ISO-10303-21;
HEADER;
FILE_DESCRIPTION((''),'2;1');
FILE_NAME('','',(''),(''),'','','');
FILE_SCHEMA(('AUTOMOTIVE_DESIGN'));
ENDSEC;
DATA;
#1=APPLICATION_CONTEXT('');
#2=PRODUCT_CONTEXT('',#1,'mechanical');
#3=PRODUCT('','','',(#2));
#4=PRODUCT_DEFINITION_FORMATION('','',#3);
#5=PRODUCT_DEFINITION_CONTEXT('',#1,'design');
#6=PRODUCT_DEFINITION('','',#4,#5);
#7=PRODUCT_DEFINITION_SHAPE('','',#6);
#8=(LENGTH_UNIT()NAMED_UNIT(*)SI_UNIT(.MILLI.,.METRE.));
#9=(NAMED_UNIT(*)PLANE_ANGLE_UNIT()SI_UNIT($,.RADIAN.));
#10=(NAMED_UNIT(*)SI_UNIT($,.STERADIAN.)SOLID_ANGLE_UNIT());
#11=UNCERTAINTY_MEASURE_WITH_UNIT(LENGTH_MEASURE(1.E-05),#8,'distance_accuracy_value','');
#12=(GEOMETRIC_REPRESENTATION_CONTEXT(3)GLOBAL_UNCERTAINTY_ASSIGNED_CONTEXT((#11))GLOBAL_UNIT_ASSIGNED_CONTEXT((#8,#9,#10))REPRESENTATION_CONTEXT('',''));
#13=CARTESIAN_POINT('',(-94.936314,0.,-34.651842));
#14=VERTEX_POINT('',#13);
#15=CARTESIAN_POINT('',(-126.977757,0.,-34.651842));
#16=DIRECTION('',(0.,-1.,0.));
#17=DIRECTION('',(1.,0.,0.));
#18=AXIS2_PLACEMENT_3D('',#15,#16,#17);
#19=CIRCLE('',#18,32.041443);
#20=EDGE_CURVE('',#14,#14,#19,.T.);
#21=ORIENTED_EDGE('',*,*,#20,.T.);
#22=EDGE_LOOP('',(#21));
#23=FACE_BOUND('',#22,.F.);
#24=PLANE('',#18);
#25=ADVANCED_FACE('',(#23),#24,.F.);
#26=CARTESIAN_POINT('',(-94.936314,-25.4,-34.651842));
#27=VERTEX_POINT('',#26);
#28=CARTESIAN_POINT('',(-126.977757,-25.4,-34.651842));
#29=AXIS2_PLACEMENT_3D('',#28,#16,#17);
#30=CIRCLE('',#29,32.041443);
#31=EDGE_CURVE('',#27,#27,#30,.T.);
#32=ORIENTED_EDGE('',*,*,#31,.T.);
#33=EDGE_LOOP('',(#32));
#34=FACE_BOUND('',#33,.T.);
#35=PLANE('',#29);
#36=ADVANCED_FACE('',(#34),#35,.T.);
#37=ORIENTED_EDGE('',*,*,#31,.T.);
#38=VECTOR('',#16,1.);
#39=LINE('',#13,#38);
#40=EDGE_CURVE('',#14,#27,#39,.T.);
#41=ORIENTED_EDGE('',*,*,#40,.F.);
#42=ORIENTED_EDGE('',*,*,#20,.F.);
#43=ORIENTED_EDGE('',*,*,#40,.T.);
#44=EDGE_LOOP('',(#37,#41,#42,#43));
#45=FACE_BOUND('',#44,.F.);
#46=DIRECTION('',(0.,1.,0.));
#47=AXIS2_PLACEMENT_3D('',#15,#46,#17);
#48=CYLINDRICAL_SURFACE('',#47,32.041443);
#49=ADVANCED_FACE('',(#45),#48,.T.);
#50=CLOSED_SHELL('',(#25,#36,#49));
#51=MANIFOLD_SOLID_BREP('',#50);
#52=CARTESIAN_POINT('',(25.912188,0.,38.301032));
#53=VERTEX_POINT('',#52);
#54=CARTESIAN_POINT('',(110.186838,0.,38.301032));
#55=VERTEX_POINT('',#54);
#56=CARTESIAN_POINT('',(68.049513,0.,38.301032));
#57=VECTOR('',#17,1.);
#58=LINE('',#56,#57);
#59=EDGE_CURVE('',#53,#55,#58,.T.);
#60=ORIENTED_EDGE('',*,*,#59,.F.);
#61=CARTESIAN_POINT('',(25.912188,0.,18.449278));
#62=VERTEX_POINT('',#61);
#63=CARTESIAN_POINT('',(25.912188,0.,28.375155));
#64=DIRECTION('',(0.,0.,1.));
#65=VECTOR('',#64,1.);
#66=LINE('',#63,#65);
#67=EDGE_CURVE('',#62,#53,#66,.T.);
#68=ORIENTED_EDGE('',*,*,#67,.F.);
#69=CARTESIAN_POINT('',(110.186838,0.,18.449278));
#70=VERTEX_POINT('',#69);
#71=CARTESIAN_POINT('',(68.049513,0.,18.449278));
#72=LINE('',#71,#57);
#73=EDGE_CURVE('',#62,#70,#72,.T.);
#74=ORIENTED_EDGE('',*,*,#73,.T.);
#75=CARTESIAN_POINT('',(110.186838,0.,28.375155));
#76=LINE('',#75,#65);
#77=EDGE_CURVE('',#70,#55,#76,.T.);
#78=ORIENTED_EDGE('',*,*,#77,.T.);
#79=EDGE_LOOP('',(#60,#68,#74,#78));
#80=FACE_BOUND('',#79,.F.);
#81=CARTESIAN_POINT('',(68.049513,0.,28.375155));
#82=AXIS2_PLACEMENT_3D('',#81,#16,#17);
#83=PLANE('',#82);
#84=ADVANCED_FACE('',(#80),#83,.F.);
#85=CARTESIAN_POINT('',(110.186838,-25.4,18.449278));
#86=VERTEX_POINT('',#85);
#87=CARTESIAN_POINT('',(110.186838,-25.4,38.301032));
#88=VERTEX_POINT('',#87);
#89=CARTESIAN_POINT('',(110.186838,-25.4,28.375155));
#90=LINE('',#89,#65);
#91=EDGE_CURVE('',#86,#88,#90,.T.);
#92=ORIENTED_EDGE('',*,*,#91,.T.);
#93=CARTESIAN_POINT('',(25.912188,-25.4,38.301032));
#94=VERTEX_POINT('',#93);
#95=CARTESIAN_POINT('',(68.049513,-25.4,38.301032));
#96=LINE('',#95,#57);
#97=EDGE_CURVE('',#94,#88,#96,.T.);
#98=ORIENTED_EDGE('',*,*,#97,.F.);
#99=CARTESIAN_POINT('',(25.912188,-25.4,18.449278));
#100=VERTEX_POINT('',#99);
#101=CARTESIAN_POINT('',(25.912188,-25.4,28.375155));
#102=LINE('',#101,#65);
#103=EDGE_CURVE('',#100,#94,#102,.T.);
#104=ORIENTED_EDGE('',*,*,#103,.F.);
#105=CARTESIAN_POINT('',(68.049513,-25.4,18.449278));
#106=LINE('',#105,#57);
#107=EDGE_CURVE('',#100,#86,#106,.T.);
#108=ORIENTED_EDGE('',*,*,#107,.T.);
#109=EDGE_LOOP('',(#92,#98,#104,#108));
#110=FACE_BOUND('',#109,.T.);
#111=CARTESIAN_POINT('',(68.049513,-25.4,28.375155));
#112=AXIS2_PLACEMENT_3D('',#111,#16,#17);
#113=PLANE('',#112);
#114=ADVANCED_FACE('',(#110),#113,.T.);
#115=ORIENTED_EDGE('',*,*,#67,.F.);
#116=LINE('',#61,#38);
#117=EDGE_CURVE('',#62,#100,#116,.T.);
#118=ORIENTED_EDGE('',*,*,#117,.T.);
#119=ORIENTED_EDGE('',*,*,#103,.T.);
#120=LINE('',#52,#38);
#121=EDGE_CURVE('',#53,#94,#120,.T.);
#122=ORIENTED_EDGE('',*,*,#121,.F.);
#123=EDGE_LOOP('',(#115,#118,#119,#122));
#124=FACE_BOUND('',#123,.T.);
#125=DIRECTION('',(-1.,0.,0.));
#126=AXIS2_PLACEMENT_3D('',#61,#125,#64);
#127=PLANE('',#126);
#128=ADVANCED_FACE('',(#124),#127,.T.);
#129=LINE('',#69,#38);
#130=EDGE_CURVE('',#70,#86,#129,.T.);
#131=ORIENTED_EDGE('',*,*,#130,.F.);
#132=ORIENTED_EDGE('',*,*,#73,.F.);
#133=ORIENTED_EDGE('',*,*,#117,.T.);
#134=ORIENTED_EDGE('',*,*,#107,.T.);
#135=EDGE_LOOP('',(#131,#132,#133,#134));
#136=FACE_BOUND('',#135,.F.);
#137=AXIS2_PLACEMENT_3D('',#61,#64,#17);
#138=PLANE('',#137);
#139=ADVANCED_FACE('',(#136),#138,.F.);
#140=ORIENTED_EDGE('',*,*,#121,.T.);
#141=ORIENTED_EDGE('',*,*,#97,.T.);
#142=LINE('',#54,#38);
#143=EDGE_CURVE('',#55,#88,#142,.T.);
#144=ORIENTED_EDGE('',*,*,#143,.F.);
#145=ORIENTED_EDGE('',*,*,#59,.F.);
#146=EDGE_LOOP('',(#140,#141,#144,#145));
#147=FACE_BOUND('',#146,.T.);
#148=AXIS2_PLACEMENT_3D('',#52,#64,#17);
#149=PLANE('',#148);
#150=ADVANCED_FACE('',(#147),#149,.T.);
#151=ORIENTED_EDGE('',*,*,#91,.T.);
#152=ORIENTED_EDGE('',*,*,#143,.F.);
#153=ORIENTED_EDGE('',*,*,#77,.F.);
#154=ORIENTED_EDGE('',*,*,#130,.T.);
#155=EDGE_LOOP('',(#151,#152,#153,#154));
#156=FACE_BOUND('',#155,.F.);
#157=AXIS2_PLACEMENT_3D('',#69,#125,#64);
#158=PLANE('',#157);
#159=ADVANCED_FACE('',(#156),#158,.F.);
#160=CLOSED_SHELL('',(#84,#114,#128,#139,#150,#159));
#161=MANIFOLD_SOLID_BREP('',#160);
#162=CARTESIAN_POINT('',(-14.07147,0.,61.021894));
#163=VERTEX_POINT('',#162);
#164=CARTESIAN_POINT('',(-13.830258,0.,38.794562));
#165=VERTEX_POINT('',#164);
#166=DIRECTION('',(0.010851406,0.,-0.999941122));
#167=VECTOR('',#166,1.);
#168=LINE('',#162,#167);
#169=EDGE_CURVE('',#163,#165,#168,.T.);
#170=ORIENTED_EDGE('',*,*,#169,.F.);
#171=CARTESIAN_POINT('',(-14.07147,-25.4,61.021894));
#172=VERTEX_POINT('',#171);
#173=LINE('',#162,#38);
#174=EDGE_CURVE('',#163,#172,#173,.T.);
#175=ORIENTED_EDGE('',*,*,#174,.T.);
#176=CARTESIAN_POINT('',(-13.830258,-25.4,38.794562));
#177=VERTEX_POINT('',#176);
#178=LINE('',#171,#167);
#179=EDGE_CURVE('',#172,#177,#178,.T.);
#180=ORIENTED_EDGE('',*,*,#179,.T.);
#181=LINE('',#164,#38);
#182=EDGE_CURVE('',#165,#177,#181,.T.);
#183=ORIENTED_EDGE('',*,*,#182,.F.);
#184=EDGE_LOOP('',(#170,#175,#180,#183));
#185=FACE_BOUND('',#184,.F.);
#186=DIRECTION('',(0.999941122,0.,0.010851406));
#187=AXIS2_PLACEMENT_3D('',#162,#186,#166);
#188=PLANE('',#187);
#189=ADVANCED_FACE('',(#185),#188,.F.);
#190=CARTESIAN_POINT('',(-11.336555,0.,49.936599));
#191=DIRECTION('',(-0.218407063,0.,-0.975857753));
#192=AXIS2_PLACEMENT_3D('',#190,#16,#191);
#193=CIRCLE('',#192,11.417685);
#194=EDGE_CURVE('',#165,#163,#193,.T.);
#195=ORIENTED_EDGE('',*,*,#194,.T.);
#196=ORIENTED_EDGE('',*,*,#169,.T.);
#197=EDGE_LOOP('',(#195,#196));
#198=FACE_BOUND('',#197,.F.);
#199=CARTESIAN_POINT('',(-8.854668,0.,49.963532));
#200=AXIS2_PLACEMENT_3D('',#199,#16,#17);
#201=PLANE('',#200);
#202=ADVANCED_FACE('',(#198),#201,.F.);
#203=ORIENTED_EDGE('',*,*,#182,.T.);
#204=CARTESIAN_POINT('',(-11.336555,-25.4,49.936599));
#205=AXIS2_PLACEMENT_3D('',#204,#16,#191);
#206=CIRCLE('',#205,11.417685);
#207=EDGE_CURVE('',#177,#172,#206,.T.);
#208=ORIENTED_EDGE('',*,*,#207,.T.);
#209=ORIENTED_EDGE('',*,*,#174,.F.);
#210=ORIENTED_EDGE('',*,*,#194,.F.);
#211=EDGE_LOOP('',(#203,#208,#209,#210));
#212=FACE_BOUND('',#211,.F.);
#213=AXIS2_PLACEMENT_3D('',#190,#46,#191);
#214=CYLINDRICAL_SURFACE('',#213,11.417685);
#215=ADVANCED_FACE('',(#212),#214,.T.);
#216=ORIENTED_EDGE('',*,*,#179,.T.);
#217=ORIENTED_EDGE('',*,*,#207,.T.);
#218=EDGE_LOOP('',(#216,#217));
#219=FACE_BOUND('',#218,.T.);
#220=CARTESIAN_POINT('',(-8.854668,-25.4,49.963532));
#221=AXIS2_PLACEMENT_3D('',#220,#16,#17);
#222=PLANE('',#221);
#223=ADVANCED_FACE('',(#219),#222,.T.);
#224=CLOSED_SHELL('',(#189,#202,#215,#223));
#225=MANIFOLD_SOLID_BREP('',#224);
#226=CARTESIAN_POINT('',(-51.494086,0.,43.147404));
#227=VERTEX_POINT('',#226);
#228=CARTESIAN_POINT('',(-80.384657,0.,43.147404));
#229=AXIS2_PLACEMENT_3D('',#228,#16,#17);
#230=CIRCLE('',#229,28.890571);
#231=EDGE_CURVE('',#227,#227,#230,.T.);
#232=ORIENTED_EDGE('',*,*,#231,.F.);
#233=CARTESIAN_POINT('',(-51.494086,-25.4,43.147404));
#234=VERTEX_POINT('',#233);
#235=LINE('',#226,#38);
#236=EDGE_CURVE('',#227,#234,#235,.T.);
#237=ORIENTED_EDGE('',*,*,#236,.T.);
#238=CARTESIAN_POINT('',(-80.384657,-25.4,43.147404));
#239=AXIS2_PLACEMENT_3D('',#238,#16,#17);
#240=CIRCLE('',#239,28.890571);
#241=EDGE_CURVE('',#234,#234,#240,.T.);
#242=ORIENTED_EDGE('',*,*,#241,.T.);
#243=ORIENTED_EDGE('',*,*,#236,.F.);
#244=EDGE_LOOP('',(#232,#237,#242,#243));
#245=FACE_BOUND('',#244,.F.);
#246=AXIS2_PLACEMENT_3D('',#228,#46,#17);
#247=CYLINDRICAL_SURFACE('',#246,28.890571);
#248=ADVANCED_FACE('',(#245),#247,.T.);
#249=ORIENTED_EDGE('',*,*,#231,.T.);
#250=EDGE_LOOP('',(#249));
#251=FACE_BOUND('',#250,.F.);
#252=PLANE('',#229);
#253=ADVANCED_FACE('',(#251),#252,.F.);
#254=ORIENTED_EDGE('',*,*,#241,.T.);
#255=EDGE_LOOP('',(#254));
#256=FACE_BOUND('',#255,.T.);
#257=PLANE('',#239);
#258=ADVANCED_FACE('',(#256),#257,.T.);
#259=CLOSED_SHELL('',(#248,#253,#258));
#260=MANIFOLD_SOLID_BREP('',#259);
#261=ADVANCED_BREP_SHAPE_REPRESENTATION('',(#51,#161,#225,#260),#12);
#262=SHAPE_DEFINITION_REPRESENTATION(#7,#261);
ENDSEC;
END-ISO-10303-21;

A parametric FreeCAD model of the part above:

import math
import FreeCAD as App
import Part
import Sketcher

V = App.Vector
Q = App.Units.Quantity


def add_polygon(sketch, points):
    """Adds a closed chain of lines whose ends are joined by coincident constraints."""
    first, n = sketch.GeometryCount, len(points)
    for a, b in zip(points, points[1:] + points[:1]):
        sketch.addGeometry(Part.LineSegment(App.Vector(*a, 0), App.Vector(*b, 0)), False)
    for i in range(n):
        sketch.addConstraint(Sketcher.Constraint("Coincident", first + i, 2, first + (i + 1) % n, 1))

doc = App.newDocument("Part")
body = doc.addObject("PartDesign::Body", "Body")
body.AllowCompound = True

# Sketch on XZ plane
sketch1 = body.newObject("Sketcher::SketchObject", "Sketch")
sketch1.AttachmentSupport = (doc.getObject("XZ_Plane"), [""])
sketch1.MapMode = "FlatFace"
sketch1.addGeometry(Part.Circle(V(-80, 43, 0), V(0, 0, 1), 29), False)  # 0
add_polygon(sketch1, [(26, 38), (26, 18), (110, 18), (110, 38)])  # lines 1-4
sketch1.addGeometry(Part.LineSegment(V(-14, 61, 0), V(-14, 39, 0)), False)  # 5
sketch1.addGeometry(Part.ArcOfCircle(Part.Circle(V(-11, 50, 0), V(0, 0, 1), 11), math.radians(-103), math.radians(104)), False)  # 6
sketch1.addGeometry(Part.Circle(V(-127, -35, 0), V(0, 0, 1), 32), False)  # 7
sketch1.addConstraint([
    Sketcher.Constraint("Coincident", 5, 1, 6, 2),
    Sketcher.Constraint("Coincident", 6, 1, 5, 2),
    Sketcher.Constraint("Vertical", 1),
    Sketcher.Constraint("Horizontal", 2),
    Sketcher.Constraint("Vertical", 3),
    Sketcher.Constraint("Horizontal", 4),
    Sketcher.Constraint("Diameter", 0, Q("57.781142 mm")),
    Sketcher.Constraint("Diameter", 7, Q("64.082886 mm")),
    Sketcher.Constraint("Radius", 6, Q("11.417685 mm")),
    Sketcher.Constraint("DistanceX", 2, 1, 2, 2, Q("84.27465 mm")),
    Sketcher.Constraint("DistanceY", -1, 1, 6, 3, Q("49.936599 mm")),
    Sketcher.Constraint("DistanceX", 7, 3, 0, 3, Q("46.5931 mm")),
    Sketcher.Constraint("DistanceX", 0, 3, 6, 1, Q("66.554399 mm")),
    Sketcher.Constraint("Distance", 5, Q("22.228641 mm")),
    Sketcher.Constraint("DistanceY", 1, 2, 1, 1, Q("19.851753 mm")),
    Sketcher.Constraint("DistanceX", -1, 1, 1, 2, Q("25.912188 mm")),
    Sketcher.Constraint("DistanceY", -1, 1, 1, 2, Q("18.449278 mm")),
    Sketcher.Constraint("DistanceX", 5, 1, -1, 1, Q("14.07147 mm")),
    Sketcher.Constraint("DistanceX", 6, 1, -1, 1, Q("13.830258 mm")),
    Sketcher.Constraint("DistanceY", 7, 3, 6, 3, Q("84.588441 mm")),
    Sketcher.Constraint("DistanceY", 0, 3, 5, 1, Q("17.87449 mm")),
])
pad1 = body.newObject("PartDesign::Pad", "Pad")
pad1.Profile = sketch1
pad1.Length = Q("1 in")

doc.recompute()
